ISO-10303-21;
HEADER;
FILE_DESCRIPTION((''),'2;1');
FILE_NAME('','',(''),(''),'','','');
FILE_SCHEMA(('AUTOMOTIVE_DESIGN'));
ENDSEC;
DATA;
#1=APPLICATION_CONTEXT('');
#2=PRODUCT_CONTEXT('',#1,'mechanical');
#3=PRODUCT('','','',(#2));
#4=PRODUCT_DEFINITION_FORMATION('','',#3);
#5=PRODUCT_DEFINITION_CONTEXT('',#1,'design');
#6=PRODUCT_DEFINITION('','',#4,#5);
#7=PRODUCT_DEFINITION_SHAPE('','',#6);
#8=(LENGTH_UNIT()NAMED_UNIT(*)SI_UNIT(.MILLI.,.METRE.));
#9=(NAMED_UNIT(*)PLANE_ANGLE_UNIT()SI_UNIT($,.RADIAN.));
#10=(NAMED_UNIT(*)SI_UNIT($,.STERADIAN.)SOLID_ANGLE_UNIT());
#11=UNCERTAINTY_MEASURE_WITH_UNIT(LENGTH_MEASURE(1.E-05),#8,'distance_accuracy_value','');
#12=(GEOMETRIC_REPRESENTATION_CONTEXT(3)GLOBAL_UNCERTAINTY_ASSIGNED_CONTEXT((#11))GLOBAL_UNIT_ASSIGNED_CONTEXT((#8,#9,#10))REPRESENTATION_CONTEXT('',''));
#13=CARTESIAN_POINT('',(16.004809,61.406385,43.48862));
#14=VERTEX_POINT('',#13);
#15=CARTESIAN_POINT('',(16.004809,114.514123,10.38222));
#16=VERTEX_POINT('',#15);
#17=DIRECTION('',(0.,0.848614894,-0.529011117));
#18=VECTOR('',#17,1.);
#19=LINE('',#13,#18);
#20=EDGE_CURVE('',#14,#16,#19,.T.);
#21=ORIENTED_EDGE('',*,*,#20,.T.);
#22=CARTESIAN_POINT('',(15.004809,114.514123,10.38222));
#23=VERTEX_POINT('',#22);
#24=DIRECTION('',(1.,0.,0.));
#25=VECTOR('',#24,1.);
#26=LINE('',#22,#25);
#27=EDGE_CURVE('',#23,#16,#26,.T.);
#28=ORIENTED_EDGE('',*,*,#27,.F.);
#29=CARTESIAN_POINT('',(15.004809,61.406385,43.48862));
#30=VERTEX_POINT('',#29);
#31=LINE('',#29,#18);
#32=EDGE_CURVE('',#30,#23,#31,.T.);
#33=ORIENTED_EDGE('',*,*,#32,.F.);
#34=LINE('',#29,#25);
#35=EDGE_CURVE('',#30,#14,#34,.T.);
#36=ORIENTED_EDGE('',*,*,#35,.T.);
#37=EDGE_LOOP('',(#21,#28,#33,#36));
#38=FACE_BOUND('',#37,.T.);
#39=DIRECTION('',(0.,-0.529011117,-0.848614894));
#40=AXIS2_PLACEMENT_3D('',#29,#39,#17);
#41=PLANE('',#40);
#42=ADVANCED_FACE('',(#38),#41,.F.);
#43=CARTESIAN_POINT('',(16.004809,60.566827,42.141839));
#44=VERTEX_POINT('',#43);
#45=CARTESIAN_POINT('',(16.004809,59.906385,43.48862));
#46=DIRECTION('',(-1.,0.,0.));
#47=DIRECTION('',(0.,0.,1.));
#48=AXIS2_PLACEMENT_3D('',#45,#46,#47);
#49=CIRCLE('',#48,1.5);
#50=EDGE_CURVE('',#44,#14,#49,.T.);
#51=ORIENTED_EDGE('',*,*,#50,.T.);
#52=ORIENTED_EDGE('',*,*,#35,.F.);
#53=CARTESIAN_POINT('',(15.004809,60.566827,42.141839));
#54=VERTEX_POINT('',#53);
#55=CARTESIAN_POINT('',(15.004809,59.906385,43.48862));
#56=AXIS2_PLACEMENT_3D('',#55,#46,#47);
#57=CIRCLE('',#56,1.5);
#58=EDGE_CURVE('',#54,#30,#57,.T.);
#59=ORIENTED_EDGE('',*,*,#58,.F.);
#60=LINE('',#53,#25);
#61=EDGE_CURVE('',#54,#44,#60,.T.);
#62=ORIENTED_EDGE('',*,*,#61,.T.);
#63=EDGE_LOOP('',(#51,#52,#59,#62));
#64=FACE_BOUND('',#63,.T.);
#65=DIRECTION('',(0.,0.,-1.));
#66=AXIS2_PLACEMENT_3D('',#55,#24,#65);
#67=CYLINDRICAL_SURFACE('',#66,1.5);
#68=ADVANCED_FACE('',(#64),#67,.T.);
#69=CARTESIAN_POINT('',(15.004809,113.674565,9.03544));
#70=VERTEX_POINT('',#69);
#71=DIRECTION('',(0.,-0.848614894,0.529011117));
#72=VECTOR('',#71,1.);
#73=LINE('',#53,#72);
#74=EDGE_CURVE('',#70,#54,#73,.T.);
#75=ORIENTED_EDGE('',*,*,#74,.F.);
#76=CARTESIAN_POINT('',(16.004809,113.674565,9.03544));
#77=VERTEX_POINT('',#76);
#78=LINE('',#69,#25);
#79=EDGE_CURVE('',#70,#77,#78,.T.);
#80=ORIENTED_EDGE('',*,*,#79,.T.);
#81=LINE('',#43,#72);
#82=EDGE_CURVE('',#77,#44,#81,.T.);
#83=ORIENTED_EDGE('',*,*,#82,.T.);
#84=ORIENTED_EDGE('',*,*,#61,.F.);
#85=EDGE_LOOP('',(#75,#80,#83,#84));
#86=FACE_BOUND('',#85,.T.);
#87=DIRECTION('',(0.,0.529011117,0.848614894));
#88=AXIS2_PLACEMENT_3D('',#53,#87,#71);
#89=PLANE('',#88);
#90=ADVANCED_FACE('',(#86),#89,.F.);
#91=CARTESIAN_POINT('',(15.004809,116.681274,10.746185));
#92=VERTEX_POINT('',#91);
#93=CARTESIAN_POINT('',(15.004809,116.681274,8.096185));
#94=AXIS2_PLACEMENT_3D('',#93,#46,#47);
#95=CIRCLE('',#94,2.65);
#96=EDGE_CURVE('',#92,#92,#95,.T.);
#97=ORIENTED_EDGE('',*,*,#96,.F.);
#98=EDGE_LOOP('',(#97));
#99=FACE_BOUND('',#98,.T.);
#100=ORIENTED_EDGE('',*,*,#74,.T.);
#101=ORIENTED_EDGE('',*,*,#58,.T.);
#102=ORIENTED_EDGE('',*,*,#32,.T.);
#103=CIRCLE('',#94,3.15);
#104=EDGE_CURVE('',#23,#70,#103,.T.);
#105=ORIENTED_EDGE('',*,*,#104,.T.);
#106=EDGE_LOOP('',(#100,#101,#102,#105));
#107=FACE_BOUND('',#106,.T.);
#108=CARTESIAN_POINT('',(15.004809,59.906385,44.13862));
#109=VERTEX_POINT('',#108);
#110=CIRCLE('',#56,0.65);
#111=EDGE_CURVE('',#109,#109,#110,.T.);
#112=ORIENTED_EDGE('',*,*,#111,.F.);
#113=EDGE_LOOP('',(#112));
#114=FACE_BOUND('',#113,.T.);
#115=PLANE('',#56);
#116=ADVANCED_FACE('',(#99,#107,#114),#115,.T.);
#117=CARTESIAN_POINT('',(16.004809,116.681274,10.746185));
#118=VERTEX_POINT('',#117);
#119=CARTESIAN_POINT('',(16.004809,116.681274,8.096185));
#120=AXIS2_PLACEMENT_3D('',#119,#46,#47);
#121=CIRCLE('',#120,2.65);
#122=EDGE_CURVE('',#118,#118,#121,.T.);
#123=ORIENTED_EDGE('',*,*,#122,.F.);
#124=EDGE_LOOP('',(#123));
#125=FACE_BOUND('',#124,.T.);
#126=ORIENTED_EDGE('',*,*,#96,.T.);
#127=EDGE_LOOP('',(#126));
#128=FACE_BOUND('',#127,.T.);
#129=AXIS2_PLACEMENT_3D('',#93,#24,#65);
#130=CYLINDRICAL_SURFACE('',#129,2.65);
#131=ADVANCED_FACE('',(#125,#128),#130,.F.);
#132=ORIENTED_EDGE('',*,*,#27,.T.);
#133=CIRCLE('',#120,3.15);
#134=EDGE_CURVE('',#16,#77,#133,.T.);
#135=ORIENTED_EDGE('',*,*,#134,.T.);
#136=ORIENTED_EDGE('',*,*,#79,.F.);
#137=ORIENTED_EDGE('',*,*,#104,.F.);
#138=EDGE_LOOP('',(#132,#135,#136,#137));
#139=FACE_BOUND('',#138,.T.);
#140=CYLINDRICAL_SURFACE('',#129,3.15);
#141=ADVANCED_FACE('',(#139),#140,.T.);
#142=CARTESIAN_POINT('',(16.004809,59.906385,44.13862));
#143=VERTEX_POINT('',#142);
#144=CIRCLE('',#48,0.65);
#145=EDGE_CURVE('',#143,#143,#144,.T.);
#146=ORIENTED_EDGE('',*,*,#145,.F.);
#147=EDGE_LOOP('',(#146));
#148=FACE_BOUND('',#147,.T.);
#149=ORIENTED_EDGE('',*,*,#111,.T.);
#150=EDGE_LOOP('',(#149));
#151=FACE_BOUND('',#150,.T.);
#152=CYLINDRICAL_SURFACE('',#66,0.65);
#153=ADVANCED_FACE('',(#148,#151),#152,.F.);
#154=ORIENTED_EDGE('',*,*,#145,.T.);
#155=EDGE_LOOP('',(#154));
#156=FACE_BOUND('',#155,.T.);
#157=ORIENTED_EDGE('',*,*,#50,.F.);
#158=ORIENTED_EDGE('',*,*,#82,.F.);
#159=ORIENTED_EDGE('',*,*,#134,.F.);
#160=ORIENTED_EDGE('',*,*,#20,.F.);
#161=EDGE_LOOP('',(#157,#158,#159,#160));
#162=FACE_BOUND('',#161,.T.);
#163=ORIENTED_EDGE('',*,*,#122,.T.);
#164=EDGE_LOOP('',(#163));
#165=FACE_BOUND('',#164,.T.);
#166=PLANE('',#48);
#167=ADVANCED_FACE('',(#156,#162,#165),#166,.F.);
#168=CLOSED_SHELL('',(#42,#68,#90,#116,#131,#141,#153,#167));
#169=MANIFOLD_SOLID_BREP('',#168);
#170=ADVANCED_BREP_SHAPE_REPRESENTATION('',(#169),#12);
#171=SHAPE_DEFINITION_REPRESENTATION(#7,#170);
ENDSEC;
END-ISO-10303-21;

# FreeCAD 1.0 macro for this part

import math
import FreeCAD as App
import Part
import Sketcher
from FreeCAD import Vector

doc = App.newDocument("Part")
body = doc.addObject("PartDesign::Body", "Body")

# Sketch on YZ plane
sketch1 = body.newObject("Sketcher::SketchObject", "Sketch")
sketch1.AttachmentSupport = (doc.getObject("YZ_Plane"), [""])
sketch1.MapMode = "FlatFace"
sketch1.AttachmentOffset = App.Placement(Vector(0, 0, 16.004809), App.Rotation())
sketch1.addGeometry([
    Part.LineSegment(Vector(61.4, 43.5, 0), Vector(114.5, 10.4, 0)),  # 0
    Part.ArcOfCircle(Part.Circle(Vector(116.7, 8.1, 0), Vector(0, 0, 1), 3.1), math.radians(163), math.radians(493)),  # 1
    Part.LineSegment(Vector(113.7, 9, 0), Vector(60.6, 42.1, 0)),  # 2
    Part.ArcOfCircle(Part.Circle(Vector(59.9, 43.5, 0), Vector(0, 0, 1), 1.5), math.radians(0), math.radians(296)),  # 3
    Part.Circle(Vector(59.9, 43.5, 0), Vector(0, 0, 1), 0.7),  # 4
    Part.Circle(Vector(116.7, 8.1, 0), Vector(0, 0, 1), 2.6),  # 5
], False)
sketch1.addConstraint([
    Sketcher.Constraint("Coincident", 0, 2, 1, 2),
    Sketcher.Constraint("Coincident", 1, 1, 2, 1),
    Sketcher.Constraint("Coincident", 2, 2, 3, 2),
    Sketcher.Constraint("Coincident", 3, 1, 0, 1),
    Sketcher.Constraint("Coincident", 4, 3, 3, 3),
    Sketcher.Constraint("Coincident", 5, 3, 1, 3),
    Sketcher.Constraint("Parallel", 0, 2),
    Sketcher.Constraint("Horizontal", 4, 3, 3, 1),
    Sketcher.Constraint("Equal", 0, 2),
    Sketcher.Constraint("Diameter", 4, 1.3),
    Sketcher.Constraint("Diameter", 5, 5.3),
    Sketcher.Constraint("Radius", 3, 1.5),
    Sketcher.Constraint("Radius", 1, 3.15),
    Sketcher.Constraint("DistanceY", 0, 2, 3, 3, 33.1064),
    Sketcher.Constraint("Distance", 0, 62.581671),
    Sketcher.Constraint("DistanceY", -1, 1, 3, 3, 43.48862),
    Sketcher.Constraint("DistanceY", -1, 1, 1, 1, 9.03544),
    Sketcher.Constraint("DistanceX", -1, 1, 1, 3, 116.681274),
])
pad1 = body.newObject("PartDesign::Pad", "Pad")
pad1.Profile = sketch1
pad1.Length = 1
pad1.Reversed = True

doc.recompute()
